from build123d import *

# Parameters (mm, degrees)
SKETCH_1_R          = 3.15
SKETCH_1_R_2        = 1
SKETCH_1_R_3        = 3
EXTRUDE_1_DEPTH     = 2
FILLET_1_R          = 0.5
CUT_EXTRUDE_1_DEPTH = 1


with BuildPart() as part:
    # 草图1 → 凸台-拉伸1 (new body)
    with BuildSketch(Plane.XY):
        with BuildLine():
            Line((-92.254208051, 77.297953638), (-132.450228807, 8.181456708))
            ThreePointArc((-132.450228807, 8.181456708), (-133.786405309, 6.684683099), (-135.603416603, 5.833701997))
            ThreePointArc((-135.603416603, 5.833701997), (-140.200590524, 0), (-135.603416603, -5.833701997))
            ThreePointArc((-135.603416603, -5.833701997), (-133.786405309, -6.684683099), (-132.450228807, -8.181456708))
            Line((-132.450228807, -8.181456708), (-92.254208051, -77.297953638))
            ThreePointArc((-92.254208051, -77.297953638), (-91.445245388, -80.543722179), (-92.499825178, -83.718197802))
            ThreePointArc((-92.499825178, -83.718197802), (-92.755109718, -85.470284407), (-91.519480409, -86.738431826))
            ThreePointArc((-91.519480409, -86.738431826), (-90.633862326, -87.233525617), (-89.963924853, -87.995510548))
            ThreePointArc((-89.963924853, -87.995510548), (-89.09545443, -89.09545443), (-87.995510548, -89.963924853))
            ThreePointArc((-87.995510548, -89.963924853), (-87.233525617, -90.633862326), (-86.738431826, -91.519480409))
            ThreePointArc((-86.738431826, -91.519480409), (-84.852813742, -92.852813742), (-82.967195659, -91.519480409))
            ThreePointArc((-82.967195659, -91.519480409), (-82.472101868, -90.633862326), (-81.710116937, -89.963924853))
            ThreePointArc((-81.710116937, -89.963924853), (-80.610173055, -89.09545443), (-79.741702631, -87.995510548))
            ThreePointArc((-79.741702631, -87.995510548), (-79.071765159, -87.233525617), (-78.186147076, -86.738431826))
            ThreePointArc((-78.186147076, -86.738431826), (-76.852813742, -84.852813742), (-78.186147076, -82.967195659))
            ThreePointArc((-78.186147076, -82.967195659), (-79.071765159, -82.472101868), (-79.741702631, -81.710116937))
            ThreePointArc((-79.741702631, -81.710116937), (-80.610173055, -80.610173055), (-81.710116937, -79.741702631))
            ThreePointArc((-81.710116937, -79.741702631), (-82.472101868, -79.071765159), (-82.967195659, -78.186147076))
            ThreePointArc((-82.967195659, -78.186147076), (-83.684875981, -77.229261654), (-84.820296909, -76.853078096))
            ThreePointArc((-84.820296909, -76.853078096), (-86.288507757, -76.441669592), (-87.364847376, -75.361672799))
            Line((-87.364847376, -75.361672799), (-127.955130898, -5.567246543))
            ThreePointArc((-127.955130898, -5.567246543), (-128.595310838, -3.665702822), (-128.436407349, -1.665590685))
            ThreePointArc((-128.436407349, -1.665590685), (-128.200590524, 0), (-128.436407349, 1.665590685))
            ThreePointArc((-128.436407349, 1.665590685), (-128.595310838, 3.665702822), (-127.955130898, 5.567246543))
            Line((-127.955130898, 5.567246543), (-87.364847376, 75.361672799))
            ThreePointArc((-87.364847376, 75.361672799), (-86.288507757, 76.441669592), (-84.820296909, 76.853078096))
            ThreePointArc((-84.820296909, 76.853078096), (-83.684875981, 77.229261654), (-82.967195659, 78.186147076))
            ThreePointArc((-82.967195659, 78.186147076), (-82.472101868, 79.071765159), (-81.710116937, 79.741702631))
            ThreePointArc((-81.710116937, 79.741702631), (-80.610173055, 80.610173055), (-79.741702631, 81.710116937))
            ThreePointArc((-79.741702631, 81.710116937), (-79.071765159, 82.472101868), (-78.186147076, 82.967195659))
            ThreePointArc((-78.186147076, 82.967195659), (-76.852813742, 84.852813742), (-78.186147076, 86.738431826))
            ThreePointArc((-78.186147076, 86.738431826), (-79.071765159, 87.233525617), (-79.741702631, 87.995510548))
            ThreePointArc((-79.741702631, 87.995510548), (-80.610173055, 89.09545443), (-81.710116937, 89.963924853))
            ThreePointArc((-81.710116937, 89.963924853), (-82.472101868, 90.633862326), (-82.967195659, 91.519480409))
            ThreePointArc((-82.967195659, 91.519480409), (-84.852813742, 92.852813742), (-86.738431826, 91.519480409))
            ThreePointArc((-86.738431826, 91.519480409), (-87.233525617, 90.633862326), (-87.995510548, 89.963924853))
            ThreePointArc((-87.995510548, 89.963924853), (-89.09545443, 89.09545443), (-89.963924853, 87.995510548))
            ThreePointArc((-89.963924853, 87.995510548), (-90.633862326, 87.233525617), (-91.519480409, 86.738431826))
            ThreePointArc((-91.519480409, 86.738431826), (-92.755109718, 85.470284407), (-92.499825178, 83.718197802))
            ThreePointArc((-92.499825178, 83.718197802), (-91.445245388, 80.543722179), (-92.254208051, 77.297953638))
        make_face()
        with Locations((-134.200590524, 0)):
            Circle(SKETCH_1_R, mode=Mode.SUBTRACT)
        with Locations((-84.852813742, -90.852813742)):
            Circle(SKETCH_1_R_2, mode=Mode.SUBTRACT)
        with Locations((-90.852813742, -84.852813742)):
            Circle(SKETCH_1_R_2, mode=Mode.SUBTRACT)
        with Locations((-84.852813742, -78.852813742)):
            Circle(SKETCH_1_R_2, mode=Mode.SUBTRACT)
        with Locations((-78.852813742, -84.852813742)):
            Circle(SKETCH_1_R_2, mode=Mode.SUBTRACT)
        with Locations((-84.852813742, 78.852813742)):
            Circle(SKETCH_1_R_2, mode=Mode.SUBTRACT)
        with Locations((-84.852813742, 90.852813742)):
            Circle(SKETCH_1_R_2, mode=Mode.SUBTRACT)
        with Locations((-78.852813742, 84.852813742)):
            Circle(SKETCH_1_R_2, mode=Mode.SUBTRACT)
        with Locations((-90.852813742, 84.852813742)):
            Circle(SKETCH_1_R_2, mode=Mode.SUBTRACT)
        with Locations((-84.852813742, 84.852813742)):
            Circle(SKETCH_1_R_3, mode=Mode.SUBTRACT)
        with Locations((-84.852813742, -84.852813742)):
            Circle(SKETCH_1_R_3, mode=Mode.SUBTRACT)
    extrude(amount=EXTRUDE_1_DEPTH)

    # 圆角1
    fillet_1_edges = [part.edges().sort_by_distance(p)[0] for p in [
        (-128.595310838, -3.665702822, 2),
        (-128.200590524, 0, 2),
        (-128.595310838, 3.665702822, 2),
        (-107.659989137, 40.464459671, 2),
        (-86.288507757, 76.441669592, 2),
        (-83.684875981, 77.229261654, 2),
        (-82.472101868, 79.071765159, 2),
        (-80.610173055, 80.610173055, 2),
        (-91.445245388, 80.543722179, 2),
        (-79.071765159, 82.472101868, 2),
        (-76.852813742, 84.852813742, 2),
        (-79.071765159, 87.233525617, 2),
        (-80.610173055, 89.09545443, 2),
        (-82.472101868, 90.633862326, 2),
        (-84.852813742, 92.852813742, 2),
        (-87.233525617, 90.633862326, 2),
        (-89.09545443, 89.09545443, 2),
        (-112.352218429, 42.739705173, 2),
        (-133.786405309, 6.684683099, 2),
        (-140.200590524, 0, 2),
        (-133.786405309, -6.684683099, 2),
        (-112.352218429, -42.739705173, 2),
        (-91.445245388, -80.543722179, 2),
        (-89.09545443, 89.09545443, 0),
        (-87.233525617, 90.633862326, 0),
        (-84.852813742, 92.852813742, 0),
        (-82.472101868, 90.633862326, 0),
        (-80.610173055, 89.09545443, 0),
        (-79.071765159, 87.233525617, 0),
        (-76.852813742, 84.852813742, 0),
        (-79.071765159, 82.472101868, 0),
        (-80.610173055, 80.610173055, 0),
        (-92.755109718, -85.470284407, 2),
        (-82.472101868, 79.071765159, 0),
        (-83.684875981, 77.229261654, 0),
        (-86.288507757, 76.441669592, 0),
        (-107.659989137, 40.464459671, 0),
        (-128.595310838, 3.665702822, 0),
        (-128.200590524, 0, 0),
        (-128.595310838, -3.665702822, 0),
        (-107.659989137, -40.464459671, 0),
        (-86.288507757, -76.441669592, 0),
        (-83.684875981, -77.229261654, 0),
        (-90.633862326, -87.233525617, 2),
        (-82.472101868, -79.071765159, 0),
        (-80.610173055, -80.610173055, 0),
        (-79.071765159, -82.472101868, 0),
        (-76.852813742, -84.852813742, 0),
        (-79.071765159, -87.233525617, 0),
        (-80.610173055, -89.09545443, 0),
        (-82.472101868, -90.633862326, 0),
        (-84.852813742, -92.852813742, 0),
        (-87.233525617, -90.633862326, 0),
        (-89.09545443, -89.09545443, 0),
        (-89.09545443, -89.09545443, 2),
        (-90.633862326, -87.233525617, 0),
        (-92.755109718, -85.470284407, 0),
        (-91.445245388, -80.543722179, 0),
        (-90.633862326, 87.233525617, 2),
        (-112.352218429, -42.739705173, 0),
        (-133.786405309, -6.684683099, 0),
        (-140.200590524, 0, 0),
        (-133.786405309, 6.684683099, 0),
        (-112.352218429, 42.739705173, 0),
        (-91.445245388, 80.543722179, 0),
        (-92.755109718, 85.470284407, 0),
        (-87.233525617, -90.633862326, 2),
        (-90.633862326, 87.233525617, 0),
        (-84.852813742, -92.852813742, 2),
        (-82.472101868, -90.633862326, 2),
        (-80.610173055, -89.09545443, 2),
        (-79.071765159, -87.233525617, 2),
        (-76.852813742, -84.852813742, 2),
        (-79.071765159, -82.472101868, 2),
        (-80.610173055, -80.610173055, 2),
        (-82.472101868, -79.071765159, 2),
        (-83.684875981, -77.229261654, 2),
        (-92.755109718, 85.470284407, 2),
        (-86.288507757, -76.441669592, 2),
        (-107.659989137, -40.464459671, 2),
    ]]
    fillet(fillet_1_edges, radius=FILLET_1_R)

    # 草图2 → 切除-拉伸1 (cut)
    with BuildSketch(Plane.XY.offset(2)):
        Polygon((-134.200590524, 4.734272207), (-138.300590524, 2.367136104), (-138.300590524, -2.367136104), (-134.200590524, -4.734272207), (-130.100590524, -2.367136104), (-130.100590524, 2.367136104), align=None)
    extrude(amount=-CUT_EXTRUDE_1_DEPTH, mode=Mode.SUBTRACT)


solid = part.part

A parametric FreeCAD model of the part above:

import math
import FreeCAD as App
import Part
import Sketcher

V = App.Vector
Q = App.Units.Quantity


def edges_at(feature, points):
    """Names of the edges that pass closest to the given points."""
    edges = feature.Shape.Edges
    near = lambda p: min(range(len(edges)), key=lambda i: edges[i].distToShape(Part.Vertex(*p))[0])
    return sorted({f"Edge{near(p) + 1}" for p in points})

doc = App.newDocument("Part")
body = doc.addObject("PartDesign::Body", "Body")

# Sketch on XY plane
sketch1 = body.newObject("Sketcher::SketchObject", "Sketch")
sketch1.AttachmentSupport = (doc.getObject("XY_Plane"), [""])
sketch1.MapMode = "FlatFace"
sketch1.addGeometry(Part.LineSegment(V(-92.3, 77.3, 0), V(-132.5, 8.2, 0)), False)
sketch1.addGeometry(Part.ArcOfCircle(Part.Circle(V(-136.8, 10.7, 0), V(0, 0, 1), 5), math.radians(-76), math.radians(-30)), False)
sketch1.addGeometry(Part.ArcOfCircle(Part.Circle(V(-134.2, 0, 0), V(0, 0, 1), 6), math.radians(104), math.radians(256)), False)
sketch1.addGeometry(Part.ArcOfCircle(Part.Circle(V(-136.8, -10.7, 0), V(0, 0, 1), 5), math.radians(30), math.radians(76)), False)
sketch1.addGeometry(Part.LineSegment(V(-132.5, -8.2, 0), V(-92.3, -77.3, 0)), False)
sketch1.addGeometry(Part.ArcOfCircle(Part.Circle(V(-97.4, -80.3, 0), V(0, 0, 1), 6), math.radians(-35), math.radians(30)), False)
sketch1.addGeometry(Part.ArcOfCircle(Part.Circle(V(-90.9, -84.9, 0), V(0, 0, 1), 2), math.radians(145), math.radians(251)), False)
sketch1.addGeometry(Part.ArcOfCircle(Part.Circle(V(-92.5, -89.6, 0), V(0, 0, 1), 3), math.radians(32), math.radians(71)), False)
sketch1.addGeometry(Part.ArcOfCircle(Part.Circle(V(-84.9, -84.9, 0), V(0, 0, 1), 6), math.radians(-148), math.radians(-122)), False)
sketch1.addGeometry(Part.ArcOfCircle(Part.Circle(V(-89.6, -92.5, 0), V(0, 0, 1), 3), math.radians(19), math.radians(58)), False)
sketch1.addGeometry(Part.ArcOfCircle(Part.Circle(V(-84.9, -90.9, 0), V(0, 0, 1), 2), math.radians(-161), math.radians(-19)), False)
sketch1.addGeometry(Part.ArcOfCircle(Part.Circle(V(-80.1, -92.5, 0), V(0, 0, 1), 3), math.radians(122), math.radians(161)), False)
sketch1.addGeometry(Part.ArcOfCircle(Part.Circle(V(-84.9, -84.9, 0), V(0, 0, 1), 6), math.radians(-58), math.radians(-32)), False)
sketch1.addGeometry(Part.ArcOfCircle(Part.Circle(V(-77.2, -89.6, 0), V(0, 0, 1), 3), math.radians(109), math.radians(148)), False)
sketch1.addGeometry(Part.ArcOfCircle(Part.Circle(V(-78.9, -84.9, 0), V(0, 0, 1), 2), math.radians(-71), math.radians(71)), False)
sketch1.addGeometry(Part.ArcOfCircle(Part.Circle(V(-77.2, -80.1, 0), V(0, 0, 1), 3), math.radians(-148), math.radians(-109)), False)
sketch1.addGeometry(Part.ArcOfCircle(Part.Circle(V(-84.9, -84.9, 0), V(0, 0, 1), 6), math.radians(32), math.radians(58)), False)
sketch1.addGeometry(Part.ArcOfCircle(Part.Circle(V(-80.1, -77.2, 0), V(0, 0, 1), 3), math.radians(-161), math.radians(-122)), False)
sketch1.addGeometry(Part.ArcOfCircle(Part.Circle(V(-84.9, -78.9, 0), V(0, 0, 1), 2), math.radians(19), math.radians(89)), False)
sketch1.addGeometry(Part.ArcOfCircle(Part.Circle(V(-84.8, -73.9, 0), V(0, 0, 1), 3), math.radians(-150), math.radians(-91)), False)
sketch1.addGeometry(Part.LineSegment(V(-87.4, -75.4, 0), V(-128, -5.6, 0)), False)
sketch1.addGeometry(Part.ArcOfCircle(Part.Circle(V(-123.6, -3.1, 0), V(0, 0, 1), 5), math.radians(164), math.radians(210)), False)
sketch1.addGeometry(Part.ArcOfCircle(Part.Circle(V(-134.2, 0, 0), V(0, 0, 1), 6), math.radians(-16), math.radians(16)), False)
sketch1.addGeometry(Part.ArcOfCircle(Part.Circle(V(-123.6, 3.1, 0), V(0, 0, 1), 5), math.radians(150), math.radians(196)), False)
sketch1.addGeometry(Part.LineSegment(V(-128, 5.6, 0), V(-87.4, 75.4, 0)), False)
sketch1.addGeometry(Part.ArcOfCircle(Part.Circle(V(-84.8, 73.9, 0), V(0, 0, 1), 3), math.radians(91), math.radians(150)), False)
sketch1.addGeometry(Part.ArcOfCircle(Part.Circle(V(-84.9, 78.9, 0), V(0, 0, 1), 2), math.radians(-89), math.radians(-19)), False)
sketch1.addGeometry(Part.ArcOfCircle(Part.Circle(V(-80.1, 77.2, 0), V(0, 0, 1), 3), math.radians(122), math.radians(161)), False)
sketch1.addGeometry(Part.ArcOfCircle(Part.Circle(V(-84.9, 84.9, 0), V(0, 0, 1), 6), math.radians(-58), math.radians(-32)), False)
sketch1.addGeometry(Part.ArcOfCircle(Part.Circle(V(-77.2, 80.1, 0), V(0, 0, 1), 3), math.radians(109), math.radians(148)), False)
sketch1.addGeometry(Part.ArcOfCircle(Part.Circle(V(-78.9, 84.9, 0), V(0, 0, 1), 2), math.radians(-71), math.radians(71)), False)
sketch1.addGeometry(Part.ArcOfCircle(Part.Circle(V(-77.2, 89.6, 0), V(0, 0, 1), 3), math.radians(-148), math.radians(-109)), False)
sketch1.addGeometry(Part.ArcOfCircle(Part.Circle(V(-84.9, 84.9, 0), V(0, 0, 1), 6), math.radians(32), math.radians(58)), False)
sketch1.addGeometry(Part.ArcOfCircle(Part.Circle(V(-80.1, 92.5, 0), V(0, 0, 1), 3), math.radians(-161), math.radians(-122)), False)
sketch1.addGeometry(Part.ArcOfCircle(Part.Circle(V(-84.9, 90.9, 0), V(0, 0, 1), 2), math.radians(19), math.radians(161)), False)
sketch1.addGeometry(Part.ArcOfCircle(Part.Circle(V(-89.6, 92.5, 0), V(0, 0, 1), 3), math.radians(-58), math.radians(-19)), False)
sketch1.addGeometry(Part.ArcOfCircle(Part.Circle(V(-84.9, 84.9, 0), V(0, 0, 1), 6), math.radians(122), math.radians(148)), False)
sketch1.addGeometry(Part.ArcOfCircle(Part.Circle(V(-92.5, 89.6, 0), V(0, 0, 1), 3), math.radians(-71), math.radians(-32)), False)
sketch1.addGeometry(Part.ArcOfCircle(Part.Circle(V(-90.9, 84.9, 0), V(0, 0, 1), 2), math.radians(109), math.radians(215)), False)
sketch1.addGeometry(Part.ArcOfCircle(Part.Circle(V(-97.4, 80.3, 0), V(0, 0, 1), 6), math.radians(-30), math.radians(35)), False)
sketch1.addGeometry(Part.Circle(V(-90.9, -84.9, 0), V(0, 0, 1), 1), False)
sketch1.addGeometry(Part.Circle(V(-84.9, -90.9, 0), V(0, 0, 1), 1), False)
sketch1.addGeometry(Part.Circle(V(-84.9, -84.9, 0), V(0, 0, 1), 3), False)
sketch1.addGeometry(Part.Circle(V(-78.9, -84.9, 0), V(0, 0, 1), 1), False)
sketch1.addGeometry(Part.Circle(V(-84.9, -78.9, 0), V(0, 0, 1), 1), False)
sketch1.addGeometry(Part.Circle(V(-134.2, 0, 0), V(0, 0, 1), 3.1), False)
sketch1.addGeometry(Part.Circle(V(-90.9, 84.9, 0), V(0, 0, 1), 1), False)
sketch1.addGeometry(Part.Circle(V(-84.9, 78.9, 0), V(0, 0, 1), 1), False)
sketch1.addGeometry(Part.Circle(V(-84.9, 84.9, 0), V(0, 0, 1), 3), False)
sketch1.addGeometry(Part.Circle(V(-84.9, 90.9, 0), V(0, 0, 1), 1), False)
sketch1.addGeometry(Part.Circle(V(-78.9, 84.9, 0), V(0, 0, 1), 1), False)
sketch1.addConstraint(Sketcher.Constraint("Tangent", 0, 2, 1, 2))
sketch1.addConstraint(Sketcher.Constraint("Tangent", 1, 1, 2, 1))
sketch1.addConstraint(Sketcher.Constraint("Tangent", 2, 2, 3, 2))
sketch1.addConstraint(Sketcher.Constraint("Tangent", 3, 1, 4, 1))
sketch1.addConstraint(Sketcher.Constraint("Tangent", 4, 2, 5, 2))
sketch1.addConstraint(Sketcher.Constraint("Tangent", 5, 1, 6, 1))
sketch1.addConstraint(Sketcher.Constraint("Tangent", 6, 2, 7, 2))
sketch1.addConstraint(Sketcher.Constraint("Tangent", 7, 1, 8, 1))
sketch1.addConstraint(Sketcher.Constraint("Tangent", 8, 2, 9, 2))
sketch1.addConstraint(Sketcher.Constraint("Tangent", 9, 1, 10, 1))
sketch1.addConstraint(Sketcher.Constraint("Tangent", 10, 2, 11, 2))
sketch1.addConstraint(Sketcher.Constraint("Tangent", 11, 1, 12, 1))
sketch1.addConstraint(Sketcher.Constraint("Tangent", 12, 2, 13, 2))
sketch1.addConstraint(Sketcher.Constraint("Tangent", 13, 1, 14, 1))
sketch1.addConstraint(Sketcher.Constraint("Tangent", 14, 2, 15, 2))
sketch1.addConstraint(Sketcher.Constraint("Tangent", 15, 1, 16, 1))
sketch1.addConstraint(Sketcher.Constraint("Tangent", 16, 2, 17, 2))
sketch1.addConstraint(Sketcher.Constraint("Tangent", 17, 1, 18, 1))
sketch1.addConstraint(Sketcher.Constraint("Tangent", 18, 2, 19, 2))
sketch1.addConstraint(Sketcher.Constraint("Tangent", 19, 1, 20, 1))
sketch1.addConstraint(Sketcher.Constraint("Tangent", 20, 2, 21, 2))
sketch1.addConstraint(Sketcher.Constraint("Tangent", 21, 1, 22, 1))
sketch1.addConstraint(Sketcher.Constraint("Tangent", 22, 2, 23, 2))
sketch1.addConstraint(Sketcher.Constraint("Tangent", 23, 1, 24, 1))
sketch1.addConstraint(Sketcher.Constraint("Tangent", 24, 2, 25, 2))
sketch1.addConstraint(Sketcher.Constraint("Tangent", 25, 1, 26, 1))
sketch1.addConstraint(Sketcher.Constraint("Tangent", 26, 2, 27, 2))
sketch1.addConstraint(Sketcher.Constraint("Tangent", 27, 1, 28, 1))
sketch1.addConstraint(Sketcher.Constraint("Tangent", 28, 2, 29, 2))
sketch1.addConstraint(Sketcher.Constraint("Tangent", 29, 1, 30, 1))
sketch1.addConstraint(Sketcher.Constraint("Tangent", 30, 2, 31, 2))
sketch1.addConstraint(Sketcher.Constraint("Tangent", 31, 1, 32, 1))
sketch1.addConstraint(Sketcher.Constraint("Tangent", 32, 2, 33, 2))
sketch1.addConstraint(Sketcher.Constraint("Tangent", 33, 1, 34, 1))
sketch1.addConstraint(Sketcher.Constraint("Tangent", 34, 2, 35, 2))
sketch1.addConstraint(Sketcher.Constraint("Tangent", 35, 1, 36, 1))
sketch1.addConstraint(Sketcher.Constraint("Tangent", 36, 2, 37, 2))
sketch1.addConstraint(Sketcher.Constraint("Tangent", 37, 1, 38, 1))
sketch1.addConstraint(Sketcher.Constraint("Tangent", 38, 2, 39, 2))
sketch1.addConstraint(Sketcher.Constraint("Tangent", 39, 1, 0, 1))
sketch1.addConstraint(Sketcher.Constraint("Coincident", 12, 3, 8, 3))
sketch1.addConstraint(Sketcher.Constraint("Coincident", 16, 3, 8, 3))
sketch1.addConstraint(Sketcher.Constraint("Coincident", 22, 3, 2, 3))
sketch1.addConstraint(Sketcher.Constraint("Coincident", 32, 3, 28, 3))
sketch1.addConstraint(Sketcher.Constraint("Coincident", 36, 3, 28, 3))
sketch1.addConstraint(Sketcher.Constraint("Coincident", 40, 3, 6, 3))
sketch1.addConstraint(Sketcher.Constraint("Coincident", 41, 3, 10, 3))
sketch1.addConstraint(Sketcher.Constraint("Coincident", 42, 3, 8, 3))
sketch1.addConstraint(Sketcher.Constraint("Coincident", 43, 3, 14, 3))
sketch1.addConstraint(Sketcher.Constraint("Coincident", 44, 3, 18, 3))
sketch1.addConstraint(Sketcher.Constraint("Coincident", 45, 3, 2, 3))
sketch1.addConstraint(Sketcher.Constraint("Coincident", 46, 3, 38, 3))
sketch1.addConstraint(Sketcher.Constraint("Coincident", 47, 3, 26, 3))
sketch1.addConstraint(Sketcher.Constraint("Coincident", 48, 3, 28, 3))
sketch1.addConstraint(Sketcher.Constraint("Coincident", 49, 3, 34, 3))
sketch1.addConstraint(Sketcher.Constraint("Coincident", 50, 3, 30, 3))
sketch1.addConstraint(Sketcher.Constraint("Equal", 1, 3))
sketch1.addConstraint(Sketcher.Constraint("Equal", 2, 5))
sketch1.addConstraint(Sketcher.Constraint("Equal", 5, 8))
sketch1.addConstraint(Sketcher.Constraint("Equal", 7, 9))
sketch1.addConstraint(Sketcher.Constraint("Equal", 6, 10))
sketch1.addConstraint(Sketcher.Constraint("Equal", 9, 11))
sketch1.addConstraint(Sketcher.Constraint("Equal", 8, 12))
sketch1.addConstraint(Sketcher.Constraint("Equal", 11, 13))
sketch1.addConstraint(Sketcher.Constraint("Equal", 10, 14))
sketch1.addConstraint(Sketcher.Constraint("Equal", 13, 15))
sketch1.addConstraint(Sketcher.Constraint("Equal", 12, 16))
sketch1.addConstraint(Sketcher.Constraint("Equal", 15, 17))
sketch1.addConstraint(Sketcher.Constraint("Equal", 14, 18))
sketch1.addConstraint(Sketcher.Constraint("Equal", 17, 19))
sketch1.addConstraint(Sketcher.Constraint("Equal", 3, 21))
sketch1.addConstraint(Sketcher.Constraint("Equal", 16, 22))
sketch1.addConstraint(Sketcher.Constraint("Equal", 21, 23))
sketch1.addConstraint(Sketcher.Constraint("Equal", 19, 25))
sketch1.addConstraint(Sketcher.Constraint("Equal", 18, 26))
sketch1.addConstraint(Sketcher.Constraint("Equal", 25, 27))
sketch1.addConstraint(Sketcher.Constraint("Equal", 22, 28))
sketch1.addConstraint(Sketcher.Constraint("Equal", 27, 29))
sketch1.addConstraint(Sketcher.Constraint("Equal", 26, 30))
sketch1.addConstraint(Sketcher.Constraint("Equal", 29, 31))
sketch1.addConstraint(Sketcher.Constraint("Equal", 28, 32))
sketch1.addConstraint(Sketcher.Constraint("Equal", 31, 33))
sketch1.addConstraint(Sketcher.Constraint("Equal", 30, 34))
sketch1.addConstraint(Sketcher.Constraint("Equal", 33, 35))
sketch1.addConstraint(Sketcher.Constraint("Equal", 32, 36))
sketch1.addConstraint(Sketcher.Constraint("Equal", 35, 37))
sketch1.addConstraint(Sketcher.Constraint("Equal", 34, 38))
sketch1.addConstraint(Sketcher.Constraint("Equal", 36, 39))
sketch1.addConstraint(Sketcher.Constraint("Equal", 40, 41))
sketch1.addConstraint(Sketcher.Constraint("Equal", 37, 42))
sketch1.addConstraint(Sketcher.Constraint("Equal", 41, 43))
sketch1.addConstraint(Sketcher.Constraint("Equal", 43, 44))
sketch1.addConstraint(Sketcher.Constraint("Equal", 44, 46))
sketch1.addConstraint(Sketcher.Constraint("Equal", 46, 47))
sketch1.addConstraint(Sketcher.Constraint("Equal", 42, 48))
sketch1.addConstraint(Sketcher.Constraint("Equal", 47, 49))
sketch1.addConstraint(Sketcher.Constraint("Equal", 49, 50))
sketch1.addConstraint(Sketcher.Constraint("Symmetric", 1, 3, 3, 3, -1))
sketch1.addConstraint(Sketcher.Constraint("Symmetric", 19, 3, 25, 3, -1))
sketch1.addConstraint(Sketcher.Constraint("Symmetric", 17, 3, 27, 3, -1))
sketch1.addConstraint(Sketcher.Constraint("Symmetric", 15, 3, 29, 3, -1))
sketch1.addConstraint(Sketcher.Constraint("Symmetric", 10, 3, 34, 3, -1))
sketch1.addConstraint(Sketcher.Constraint("Symmetric", 6, 3, 38, 3, -1))
sketch1.addConstraint(Sketcher.Constraint("Parallel", 4, 20))
sketch1.addConstraint(Sketcher.Constraint("Parallel", 0, 24))
sketch1.addConstraint(Sketcher.Constraint("Horizontal", 6, 3, 8, 3))
sketch1.addConstraint(Sketcher.Constraint("Horizontal", 9, 3, 11, 3))
sketch1.addConstraint(Sketcher.Constraint("Horizontal", 7, 3, 13, 3))
sketch1.addConstraint(Sketcher.Constraint("Horizontal", 12, 3, 14, 3))
sketch1.addConstraint(Sketcher.Constraint("Horizontal", 28, 3, 30, 3))
sketch1.addConstraint(Sketcher.Constraint("Vertical", 11, 3, 17, 3))
sketch1.addConstraint(Sketcher.Constraint("Vertical", 16, 3, 18, 3))
sketch1.addConstraint(Sketcher.Constraint("Vertical", 21, 3, 23, 3))
sketch1.addConstraint(Sketcher.Constraint("Diameter", 40, 2.0))
sketch1.addConstraint(Sketcher.Constraint("Diameter", 42, 6.0))
sketch1.addConstraint(Sketcher.Constraint("Radius", 1, 5.0))
sketch1.addConstraint(Sketcher.Constraint("Radius", 2, 6.0))
sketch1.addConstraint(Sketcher.Constraint("Radius", 6, 2.0))
sketch1.addConstraint(Sketcher.Constraint("Diameter", 45, 6.3))
sketch1.addConstraint(Sketcher.Constraint("DistanceY", -1, 1, 1, 1, 5.833702))
sketch1.addConstraint(Sketcher.Constraint("Distance", 0, 79.955051))
sketch1.addConstraint(Sketcher.Constraint("Distance", 20, 80.739291))
sketch1.addConstraint(Sketcher.Constraint("DistanceX", 1, 3, -1, 1, 136.772438))
sketch1.addConstraint(Sketcher.Constraint("DistanceX", 5, 3, -1, 1, 97.440859))
sketch1.addConstraint(Sketcher.Constraint("DistanceX", 7, 3, -1, 1, 92.51948))
sketch1.addConstraint(Sketcher.Constraint("DistanceY", 7, 3, -1, 1, 89.566859))
sketch1.addConstraint(Sketcher.Constraint("DistanceX", 9, 3, -1, 1, 89.566859))
pad1 = body.newObject("PartDesign::Pad", "Pad")
pad1.Profile = sketch1
pad1.Length = 2
doc.recompute()

fillet = body.newObject("PartDesign::Fillet", "Fillet")
fillet.Base = (pad1, edges_at(pad1, [
    (-128.595, -3.666, 2),
    (-128.201, 0, 2),
    (-128.595, 3.666, 2),
    (-107.66, 40.464, 2),
    (-86.289, 76.442, 2),
    (-83.685, 77.229, 2),
    (-82.472, 79.072, 2),
    (-80.61, 80.61, 2),
    (-91.445, 80.544, 2),
    (-79.072, 82.472, 2),
    (-76.853, 84.853, 2),
    (-79.072, 87.234, 2),
    (-80.61, 89.095, 2),
    (-82.472, 90.634, 2),
    (-84.853, 92.853, 2),
    (-87.234, 90.634, 2),
    (-89.095, 89.095, 2),
    (-112.352, 42.74, 2),
    (-133.786, 6.685, 2),
    (-140.201, 0, 2),
    (-133.786, -6.685, 2),
    (-112.352, -42.74, 2),
    (-91.445, -80.544, 2),
    (-89.095, 89.095, 0),
    (-87.234, 90.634, 0),
    (-84.853, 92.853, 0),
    (-82.472, 90.634, 0),
    (-80.61, 89.095, 0),
    (-79.072, 87.234, 0),
    (-76.853, 84.853, 0),
    (-79.072, 82.472, 0),
    (-80.61, 80.61, 0),
    (-92.755, -85.47, 2),
    (-82.472, 79.072, 0),
    (-83.685, 77.229, 0),
    (-86.289, 76.442, 0),
    (-107.66, 40.464, 0),
    (-128.595, 3.666, 0),
    (-128.201, 0, 0),
    (-128.595, -3.666, 0),
    (-107.66, -40.464, 0),
    (-86.289, -76.442, 0),
    (-83.685, -77.229, 0),
    (-90.634, -87.234, 2),
    (-82.472, -79.072, 0),
    (-80.61, -80.61, 0),
    (-79.072, -82.472, 0),
    (-76.853, -84.853, 0),
    (-79.072, -87.234, 0),
    (-80.61, -89.095, 0),
    (-82.472, -90.634, 0),
    (-84.853, -92.853, 0),
    (-87.234, -90.634, 0),
    (-89.095, -89.095, 0),
    (-89.095, -89.095, 2),
    (-90.634, -87.234, 0),
    (-92.755, -85.47, 0),
    (-91.445, -80.544, 0),
    (-90.634, 87.234, 2),
    (-112.352, -42.74, 0),
    (-133.786, -6.685, 0),
    (-140.201, 0, 0),
    (-133.786, 6.685, 0),
    (-112.352, 42.74, 0),
    (-91.445, 80.544, 0),
    (-92.755, 85.47, 0),
    (-87.234, -90.634, 2),
    (-90.634, 87.234, 0),
    (-84.853, -92.853, 2),
    (-82.472, -90.634, 2),
    (-80.61, -89.095, 2),
    (-79.072, -87.234, 2),
    (-76.853, -84.853, 2),
    (-79.072, -82.472, 2),
    (-80.61, -80.61, 2),
    (-82.472, -79.072, 2),
    (-83.685, -77.229, 2),
    (-92.755, 85.47, 2),
    (-86.289, -76.442, 2),
    (-107.66, -40.464, 2),
]))
fillet.Radius = 0.5

# Sketch on XY plane
sketch2 = body.newObject("Sketcher::SketchObject", "Sketch001")
sketch2.AttachmentSupport = (doc.getObject("XY_Plane"), [""])
sketch2.MapMode = "FlatFace"
sketch2.AttachmentOffset = App.Placement(V(0, 0, 2), App.Rotation())
sketch2.addGeometry(Part.LineSegment(V(-134.2, 4.7, 0), V(-138.3, 2.4, 0)), False)
sketch2.addGeometry(Part.LineSegment(V(-138.3, 2.4, 0), V(-138.3, -2.4, 0)), False)
sketch2.addGeometry(Part.LineSegment(V(-138.3, -2.4, 0), V(-134.2, -4.7, 0)), False)
sketch2.addGeometry(Part.LineSegment(V(-134.2, -4.7, 0), V(-130.1, -2.4, 0)), False)
sketch2.addGeometry(Part.LineSegment(V(-130.1, -2.4, 0), V(-130.1, 2.4, 0)), False)
sketch2.addGeometry(Part.LineSegment(V(-130.1, 2.4, 0), V(-134.2, 4.7, 0)), False)
sketch2.addConstraint(Sketcher.Constraint("Coincident", 0, 2, 1, 1))
sketch2.addConstraint(Sketcher.Constraint("Coincident", 1, 2, 2, 1))
sketch2.addConstraint(Sketcher.Constraint("Coincident", 2, 2, 3, 1))
sketch2.addConstraint(Sketcher.Constraint("Coincident", 3, 2, 4, 1))
sketch2.addConstraint(Sketcher.Constraint("Coincident", 4, 2, 5, 1))
sketch2.addConstraint(Sketcher.Constraint("Coincident", 5, 2, 0, 1))
sketch2.addConstraint(Sketcher.Constraint("Vertical", 1))
sketch2.addConstraint(Sketcher.Constraint("Vertical", 4))
sketch2.addConstraint(Sketcher.Constraint("Symmetric", 2, 2, 5, 2, -1))
sketch2.addConstraint(Sketcher.Constraint("Parallel", 0, 3))
sketch2.addConstraint(Sketcher.Constraint("Parallel", 2, 5))
sketch2.addConstraint(Sketcher.Constraint("Horizontal", 1, 2, 3, 2))
sketch2.addConstraint(Sketcher.Constraint("Horizontal", 0, 2, 4, 2))
sketch2.addConstraint(Sketcher.Constraint("Angle", 0, Q("-150 deg")))
sketch2.addConstraint(Sketcher.Constraint("DistanceX", 1, 2, 2, 2, 4.1))
sketch2.addConstraint(Sketcher.Constraint("DistanceY", 1, 2, 1, 1, 4.734272))
sketch2.addConstraint(Sketcher.Constraint("DistanceX", 0, 2, -1, 1, 138.300591))
pocket1 = body.newObject("PartDesign::Pocket", "Pocket")
pocket1.Profile = sketch2
pocket1.Length = 1

doc.recompute()
